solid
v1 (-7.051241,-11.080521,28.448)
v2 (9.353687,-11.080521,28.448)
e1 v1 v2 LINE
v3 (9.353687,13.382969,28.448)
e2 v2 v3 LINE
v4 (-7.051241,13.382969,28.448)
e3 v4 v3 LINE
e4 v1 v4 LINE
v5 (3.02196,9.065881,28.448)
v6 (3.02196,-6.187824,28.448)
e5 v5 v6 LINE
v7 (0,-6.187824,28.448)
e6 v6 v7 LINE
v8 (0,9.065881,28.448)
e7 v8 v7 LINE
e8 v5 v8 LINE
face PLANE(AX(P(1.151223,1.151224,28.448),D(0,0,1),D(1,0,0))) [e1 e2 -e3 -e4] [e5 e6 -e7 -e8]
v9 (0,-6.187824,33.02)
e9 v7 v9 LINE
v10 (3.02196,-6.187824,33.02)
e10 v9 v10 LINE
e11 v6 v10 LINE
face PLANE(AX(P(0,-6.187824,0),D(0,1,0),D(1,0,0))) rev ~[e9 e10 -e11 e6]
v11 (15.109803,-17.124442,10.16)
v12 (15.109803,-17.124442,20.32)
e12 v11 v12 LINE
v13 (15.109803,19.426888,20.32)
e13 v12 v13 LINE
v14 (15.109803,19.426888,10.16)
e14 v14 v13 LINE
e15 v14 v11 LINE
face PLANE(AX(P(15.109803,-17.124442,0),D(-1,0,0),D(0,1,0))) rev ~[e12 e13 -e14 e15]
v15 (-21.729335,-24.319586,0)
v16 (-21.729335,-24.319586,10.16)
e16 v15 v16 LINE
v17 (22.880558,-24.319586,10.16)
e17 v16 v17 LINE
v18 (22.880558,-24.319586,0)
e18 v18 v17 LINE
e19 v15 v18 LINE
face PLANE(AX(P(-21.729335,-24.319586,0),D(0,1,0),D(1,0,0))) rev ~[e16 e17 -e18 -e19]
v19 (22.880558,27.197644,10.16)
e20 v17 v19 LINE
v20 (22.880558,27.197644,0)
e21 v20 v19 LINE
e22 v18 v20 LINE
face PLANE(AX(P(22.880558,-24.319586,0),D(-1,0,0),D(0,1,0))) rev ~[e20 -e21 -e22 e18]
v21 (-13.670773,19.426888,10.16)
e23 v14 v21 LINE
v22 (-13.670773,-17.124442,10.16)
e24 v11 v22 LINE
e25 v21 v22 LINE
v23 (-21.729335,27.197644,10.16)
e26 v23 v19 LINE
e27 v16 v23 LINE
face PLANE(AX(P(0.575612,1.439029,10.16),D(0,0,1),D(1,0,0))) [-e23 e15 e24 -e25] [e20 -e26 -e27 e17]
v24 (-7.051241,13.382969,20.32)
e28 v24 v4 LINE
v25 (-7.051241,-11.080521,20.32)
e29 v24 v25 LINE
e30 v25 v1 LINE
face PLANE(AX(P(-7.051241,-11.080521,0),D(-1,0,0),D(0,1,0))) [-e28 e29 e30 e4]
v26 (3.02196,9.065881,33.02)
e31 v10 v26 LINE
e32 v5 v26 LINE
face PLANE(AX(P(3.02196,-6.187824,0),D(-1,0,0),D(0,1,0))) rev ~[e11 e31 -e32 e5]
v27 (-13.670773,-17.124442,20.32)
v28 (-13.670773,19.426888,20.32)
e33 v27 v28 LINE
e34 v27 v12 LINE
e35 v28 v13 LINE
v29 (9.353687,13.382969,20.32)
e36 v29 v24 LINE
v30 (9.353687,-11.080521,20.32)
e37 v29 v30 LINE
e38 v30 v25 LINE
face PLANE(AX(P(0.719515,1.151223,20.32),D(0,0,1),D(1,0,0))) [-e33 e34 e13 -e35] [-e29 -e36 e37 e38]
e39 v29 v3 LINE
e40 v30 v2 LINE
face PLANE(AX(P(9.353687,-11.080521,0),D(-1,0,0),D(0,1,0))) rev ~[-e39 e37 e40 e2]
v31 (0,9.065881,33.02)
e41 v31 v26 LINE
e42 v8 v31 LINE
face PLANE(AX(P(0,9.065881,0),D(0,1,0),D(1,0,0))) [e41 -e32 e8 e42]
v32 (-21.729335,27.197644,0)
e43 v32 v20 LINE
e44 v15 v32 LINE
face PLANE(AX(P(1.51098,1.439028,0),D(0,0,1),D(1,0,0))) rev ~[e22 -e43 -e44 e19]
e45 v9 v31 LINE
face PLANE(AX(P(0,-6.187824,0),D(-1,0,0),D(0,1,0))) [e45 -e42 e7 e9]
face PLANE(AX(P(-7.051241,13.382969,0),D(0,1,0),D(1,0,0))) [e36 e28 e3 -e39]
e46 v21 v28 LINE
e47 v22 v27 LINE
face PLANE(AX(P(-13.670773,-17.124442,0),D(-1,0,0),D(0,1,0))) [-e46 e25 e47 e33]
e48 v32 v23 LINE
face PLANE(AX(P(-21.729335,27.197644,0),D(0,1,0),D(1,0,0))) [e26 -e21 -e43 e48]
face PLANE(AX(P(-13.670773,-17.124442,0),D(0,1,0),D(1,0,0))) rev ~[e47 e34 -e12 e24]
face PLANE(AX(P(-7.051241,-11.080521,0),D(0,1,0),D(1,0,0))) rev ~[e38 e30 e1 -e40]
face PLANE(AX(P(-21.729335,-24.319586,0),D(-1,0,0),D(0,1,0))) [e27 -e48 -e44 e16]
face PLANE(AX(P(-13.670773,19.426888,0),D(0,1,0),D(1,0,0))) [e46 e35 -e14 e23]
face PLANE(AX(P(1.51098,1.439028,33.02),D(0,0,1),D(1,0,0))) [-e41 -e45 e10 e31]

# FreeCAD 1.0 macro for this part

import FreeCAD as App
import Part
import Sketcher


def add_polygon(sketch, points):
    """Adds a closed chain of lines whose ends are joined by coincident constraints."""
    first, n = sketch.GeometryCount, len(points)
    for a, b in zip(points, points[1:] + points[:1]):
        sketch.addGeometry(Part.LineSegment(App.Vector(*a, 0), App.Vector(*b, 0)), False)
    for i in range(n):
        sketch.addConstraint(Sketcher.Constraint("Coincident", first + i, 2, first + (i + 1) % n, 1))

doc = App.newDocument("Part")
params = doc.addObject("Spreadsheet::Sheet", "Params")
for row, (alias, value) in enumerate([
    ("pad1_length", "0.4 in"),
    ("pad2_length", "0.8 in"),
    ("pad3_length", "1.12 in"),
    ("pad4_length", "1.3 in"),
], start=1):
    params.set(f"A{row}", alias)
    params.set(f"B{row}", "=" + value)
    params.setAlias(f"B{row}", alias)

body = doc.addObject("PartDesign::Body", "Body")

sketch1 = body.newObject("Sketcher::SketchObject", "Sketch")
sketch1.AttachmentSupport = (doc.getObject("XY_Plane"), [""])
sketch1.MapMode = "FlatFace"
add_polygon(sketch1, [(-22, 27), (-22, -24), (23, -24), (23, 27)])
sketch1.addConstraint([
    Sketcher.Constraint("Vertical", 0),
    Sketcher.Constraint("Horizontal", 1),
    Sketcher.Constraint("Vertical", 2),
    Sketcher.Constraint("Horizontal", 3),
    Sketcher.Constraint("DistanceY", 0, 2, 0, 1, 51.517231),
    Sketcher.Constraint("DistanceX", 1, 1, 1, 2, 44.609893),
    Sketcher.Constraint("DistanceX", -1, 1, 1, 2, 22.880558),
    Sketcher.Constraint("DistanceY", 0, 2, -1, 1, 24.319586),
])
pad1 = body.newObject("PartDesign::Pad", "Pad")
pad1.Profile = sketch1
pad1.setExpression("Length", "Params.pad1_length")

sketch2 = body.newObject("Sketcher::SketchObject", "Sketch001")
sketch2.AttachmentSupport = (doc.getObject("XY_Plane"), [""])
sketch2.MapMode = "FlatFace"
add_polygon(sketch2, [(-14, 19), (-14, -17), (15, -17), (15, 19)])
sketch2.addConstraint([
    Sketcher.Constraint("Vertical", 0),
    Sketcher.Constraint("Horizontal", 1),
    Sketcher.Constraint("Vertical", 2),
    Sketcher.Constraint("Horizontal", 3),
    Sketcher.Constraint("DistanceY", 0, 2, 0, 1, 36.55133),
    Sketcher.Constraint("DistanceX", 1, 1, 1, 2, 28.780576),
    Sketcher.Constraint("DistanceY", 0, 2, -1, 1, 17.124442),
    Sketcher.Constraint("DistanceX", 0, 2, -1, 1, 13.670773),
])
pad2 = body.newObject("PartDesign::Pad", "Pad001")
pad2.Profile = sketch2
pad2.setExpression("Length", "Params.pad2_length")

sketch3 = body.newObject("Sketcher::SketchObject", "Sketch002")
sketch3.AttachmentSupport = (doc.getObject("XY_Plane"), [""])
sketch3.MapMode = "FlatFace"
add_polygon(sketch3, [(-7, 13), (-7, -11), (9, -11), (9, 13)])
sketch3.addConstraint([
    Sketcher.Constraint("Vertical", 0),
    Sketcher.Constraint("Horizontal", 1),
    Sketcher.Constraint("Vertical", 2),
    Sketcher.Constraint("Horizontal", 3),
    Sketcher.Constraint("DistanceX", 1, 1, 1, 2, 16.404928),
    Sketcher.Constraint("DistanceY", 0, 2, 0, 1, 24.463489),
    Sketcher.Constraint("DistanceX", 0, 2, -1, 1, 7.051241),
    Sketcher.Constraint("DistanceY", 0, 2, -1, 1, 11.080521),
])
pad3 = body.newObject("PartDesign::Pad", "Pad002")
pad3.Profile = sketch3
pad3.setExpression("Length", "Params.pad3_length")

sketch4 = body.newObject("Sketcher::SketchObject", "Sketch003")
sketch4.AttachmentSupport = (doc.getObject("XY_Plane"), [""])
sketch4.MapMode = "FlatFace"
add_polygon(sketch4, [(0, 9.1), (0, -6.2), (3, -6.2), (3, 9.1)])
sketch4.addConstraint([
    Sketcher.Constraint("Vertical", 0),
    Sketcher.Constraint("Horizontal", 1),
    Sketcher.Constraint("Vertical", 2),
    Sketcher.Constraint("Horizontal", 3),
    Sketcher.Constraint("PointOnObject", 0, 2, -2),
    Sketcher.Constraint("DistanceX", 1, 1, 1, 2, 3.02196),
    Sketcher.Constraint("DistanceY", 0, 2, 0, 1, 15.253705),
    Sketcher.Constraint("DistanceY", -1, 1, 2, 2, 9.065881),
])
pad4 = body.newObject("PartDesign::Pad", "Pad003")
pad4.Profile = sketch4
pad4.setExpression("Length", "Params.pad4_length")

doc.recompute()
